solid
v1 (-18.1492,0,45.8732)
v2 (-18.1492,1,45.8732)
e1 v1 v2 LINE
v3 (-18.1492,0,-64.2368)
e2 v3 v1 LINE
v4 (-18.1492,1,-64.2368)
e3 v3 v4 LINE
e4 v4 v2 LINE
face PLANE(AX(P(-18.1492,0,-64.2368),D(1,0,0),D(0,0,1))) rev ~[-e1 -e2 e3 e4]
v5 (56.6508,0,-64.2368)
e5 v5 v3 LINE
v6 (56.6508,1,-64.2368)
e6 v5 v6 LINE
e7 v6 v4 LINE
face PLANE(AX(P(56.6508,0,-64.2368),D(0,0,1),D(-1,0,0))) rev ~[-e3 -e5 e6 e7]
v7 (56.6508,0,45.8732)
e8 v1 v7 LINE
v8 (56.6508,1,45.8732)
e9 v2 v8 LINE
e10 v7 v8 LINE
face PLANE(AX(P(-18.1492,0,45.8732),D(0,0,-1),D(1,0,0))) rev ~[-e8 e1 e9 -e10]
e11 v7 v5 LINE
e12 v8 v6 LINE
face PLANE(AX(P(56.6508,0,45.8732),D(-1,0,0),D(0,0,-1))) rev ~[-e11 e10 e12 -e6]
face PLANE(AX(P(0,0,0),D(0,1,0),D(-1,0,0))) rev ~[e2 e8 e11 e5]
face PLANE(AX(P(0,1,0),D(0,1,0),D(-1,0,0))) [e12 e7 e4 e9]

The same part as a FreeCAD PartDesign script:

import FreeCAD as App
import Part
import Sketcher

V = App.Vector

doc = App.newDocument("Part")
body = doc.addObject("PartDesign::Body", "Body")

sketch1 = body.newObject("Sketcher::SketchObject", "Sketch")
sketch1.AttachmentSupport = (doc.getObject("XZ_Plane"), [""])
sketch1.MapMode = "FlatFace"
sketch1.addGeometry([
    Part.LineSegment(V(-18.1492, -64.2368, 0), V(-18.1492, 45.8732, 0)),
    Part.LineSegment(V(-18.1492, 45.8732, 0), V(56.6508, 45.8732, 0)),
    Part.LineSegment(V(56.6508, 45.8732, 0), V(56.6508, -64.2368, 0)),
    Part.LineSegment(V(56.6508, -64.2368, 0), V(-18.1492, -64.2368, 0)),
], False)
sketch1.addConstraint([
    Sketcher.Constraint("Coincident", 0, 2, 1, 1),
    Sketcher.Constraint("Coincident", 1, 2, 2, 1),
    Sketcher.Constraint("Coincident", 2, 2, 3, 1),
    Sketcher.Constraint("Coincident", 3, 2, 0, 1),
    Sketcher.Constraint("Vertical", 0),
    Sketcher.Constraint("Horizontal", 1),
    Sketcher.Constraint("Vertical", 2),
    Sketcher.Constraint("Horizontal", 3),
    Sketcher.Constraint("DistanceX", 1, 1, 1, 2, 74.8),
    Sketcher.Constraint("DistanceY", 0, 1, 0, 2, 110.11),
    Sketcher.Constraint("DistanceX", 0, 2, -1, 1, 18.1492),
    Sketcher.Constraint("DistanceY", -1, 1, 0, 2, 45.8732),
])
pad1 = body.newObject("PartDesign::Pad", "Pad")
pad1.Profile = sketch1
pad1.Length = 1
pad1.Reversed = True

doc.recompute()
